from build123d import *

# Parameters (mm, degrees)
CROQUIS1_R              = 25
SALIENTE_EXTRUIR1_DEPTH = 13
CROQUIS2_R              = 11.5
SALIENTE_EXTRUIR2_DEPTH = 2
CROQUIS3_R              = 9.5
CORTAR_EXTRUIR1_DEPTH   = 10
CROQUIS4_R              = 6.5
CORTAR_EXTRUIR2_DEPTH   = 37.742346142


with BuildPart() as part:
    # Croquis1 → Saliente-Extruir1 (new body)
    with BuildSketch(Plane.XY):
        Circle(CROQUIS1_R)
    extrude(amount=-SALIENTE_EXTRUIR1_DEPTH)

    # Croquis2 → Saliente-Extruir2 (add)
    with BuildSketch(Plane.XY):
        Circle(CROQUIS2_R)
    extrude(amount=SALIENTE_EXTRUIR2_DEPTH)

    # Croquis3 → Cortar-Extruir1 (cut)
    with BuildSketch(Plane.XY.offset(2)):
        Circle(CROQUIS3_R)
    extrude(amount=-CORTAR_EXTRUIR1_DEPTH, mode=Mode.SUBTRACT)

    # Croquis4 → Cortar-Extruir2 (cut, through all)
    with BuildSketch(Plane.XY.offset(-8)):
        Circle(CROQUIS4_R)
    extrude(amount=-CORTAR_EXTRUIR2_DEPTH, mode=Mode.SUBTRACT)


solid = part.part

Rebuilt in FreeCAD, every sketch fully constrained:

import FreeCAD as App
import Part
import Sketcher

doc = App.newDocument("Part")
body = doc.addObject("PartDesign::Body", "Body")

# Sketch on XY plane
sketch1 = body.newObject("Sketcher::SketchObject", "Sketch")
sketch1.AttachmentSupport = (doc.getObject("XY_Plane"), [""])
sketch1.MapMode = "FlatFace"
sketch1.addGeometry(Part.Circle(App.Vector(0, 0, 0), App.Vector(0, 0, 1), 25), False)
sketch1.addConstraint([
    Sketcher.Constraint("Coincident", 0, 3, -1, 1),
    Sketcher.Constraint("Diameter", 0, 50.0),
])
pad1 = body.newObject("PartDesign::Pad", "Pad")
pad1.Profile = sketch1
pad1.Length = 13
pad1.Reversed = True

# Sketch on XY plane
sketch2 = body.newObject("Sketcher::SketchObject", "Sketch001")
sketch2.AttachmentSupport = (doc.getObject("XY_Plane"), [""])
sketch2.MapMode = "FlatFace"
sketch2.addGeometry(Part.Circle(App.Vector(0, 0, 0), App.Vector(0, 0, 1), 12), False)
sketch2.addConstraint([
    Sketcher.Constraint("Coincident", 0, 3, -1, 1),
    Sketcher.Constraint("Diameter", 0, 23.0),
])
pad2 = body.newObject("PartDesign::Pad", "Pad001")
pad2.Profile = sketch2
pad2.Length = 2

# Sketch on XY plane
sketch3 = body.newObject("Sketcher::SketchObject", "Sketch002")
sketch3.AttachmentSupport = (doc.getObject("XY_Plane"), [""])
sketch3.MapMode = "FlatFace"
sketch3.AttachmentOffset = App.Placement(App.Vector(0, 0, 2), App.Rotation())
sketch3.addGeometry(Part.Circle(App.Vector(0, 0, 0), App.Vector(0, 0, 1), 10), False)
sketch3.addConstraint([
    Sketcher.Constraint("Coincident", 0, 3, -1, 1),
    Sketcher.Constraint("Diameter", 0, 19.0),
])
pocket1 = body.newObject("PartDesign::Pocket", "Pocket")
pocket1.Profile = sketch3
pocket1.Length = 10

# Sketch on XY plane
sketch4 = body.newObject("Sketcher::SketchObject", "Sketch003")
sketch4.AttachmentSupport = (doc.getObject("XY_Plane"), [""])
sketch4.MapMode = "FlatFace"
sketch4.AttachmentOffset = App.Placement(App.Vector(0, 0, -8), App.Rotation())
sketch4.addGeometry(Part.Circle(App.Vector(0, 0, 0), App.Vector(0, 0, 1), 6), False)
sketch4.addConstraint([
    Sketcher.Constraint("Coincident", 0, 3, -1, 1),
    Sketcher.Constraint("Diameter", 0, 13.0),
])
pocket2 = body.newObject("PartDesign::Pocket", "Pocket001")
pocket2.Profile = sketch4
pocket2.Type = "ThroughAll"

doc.recompute()
